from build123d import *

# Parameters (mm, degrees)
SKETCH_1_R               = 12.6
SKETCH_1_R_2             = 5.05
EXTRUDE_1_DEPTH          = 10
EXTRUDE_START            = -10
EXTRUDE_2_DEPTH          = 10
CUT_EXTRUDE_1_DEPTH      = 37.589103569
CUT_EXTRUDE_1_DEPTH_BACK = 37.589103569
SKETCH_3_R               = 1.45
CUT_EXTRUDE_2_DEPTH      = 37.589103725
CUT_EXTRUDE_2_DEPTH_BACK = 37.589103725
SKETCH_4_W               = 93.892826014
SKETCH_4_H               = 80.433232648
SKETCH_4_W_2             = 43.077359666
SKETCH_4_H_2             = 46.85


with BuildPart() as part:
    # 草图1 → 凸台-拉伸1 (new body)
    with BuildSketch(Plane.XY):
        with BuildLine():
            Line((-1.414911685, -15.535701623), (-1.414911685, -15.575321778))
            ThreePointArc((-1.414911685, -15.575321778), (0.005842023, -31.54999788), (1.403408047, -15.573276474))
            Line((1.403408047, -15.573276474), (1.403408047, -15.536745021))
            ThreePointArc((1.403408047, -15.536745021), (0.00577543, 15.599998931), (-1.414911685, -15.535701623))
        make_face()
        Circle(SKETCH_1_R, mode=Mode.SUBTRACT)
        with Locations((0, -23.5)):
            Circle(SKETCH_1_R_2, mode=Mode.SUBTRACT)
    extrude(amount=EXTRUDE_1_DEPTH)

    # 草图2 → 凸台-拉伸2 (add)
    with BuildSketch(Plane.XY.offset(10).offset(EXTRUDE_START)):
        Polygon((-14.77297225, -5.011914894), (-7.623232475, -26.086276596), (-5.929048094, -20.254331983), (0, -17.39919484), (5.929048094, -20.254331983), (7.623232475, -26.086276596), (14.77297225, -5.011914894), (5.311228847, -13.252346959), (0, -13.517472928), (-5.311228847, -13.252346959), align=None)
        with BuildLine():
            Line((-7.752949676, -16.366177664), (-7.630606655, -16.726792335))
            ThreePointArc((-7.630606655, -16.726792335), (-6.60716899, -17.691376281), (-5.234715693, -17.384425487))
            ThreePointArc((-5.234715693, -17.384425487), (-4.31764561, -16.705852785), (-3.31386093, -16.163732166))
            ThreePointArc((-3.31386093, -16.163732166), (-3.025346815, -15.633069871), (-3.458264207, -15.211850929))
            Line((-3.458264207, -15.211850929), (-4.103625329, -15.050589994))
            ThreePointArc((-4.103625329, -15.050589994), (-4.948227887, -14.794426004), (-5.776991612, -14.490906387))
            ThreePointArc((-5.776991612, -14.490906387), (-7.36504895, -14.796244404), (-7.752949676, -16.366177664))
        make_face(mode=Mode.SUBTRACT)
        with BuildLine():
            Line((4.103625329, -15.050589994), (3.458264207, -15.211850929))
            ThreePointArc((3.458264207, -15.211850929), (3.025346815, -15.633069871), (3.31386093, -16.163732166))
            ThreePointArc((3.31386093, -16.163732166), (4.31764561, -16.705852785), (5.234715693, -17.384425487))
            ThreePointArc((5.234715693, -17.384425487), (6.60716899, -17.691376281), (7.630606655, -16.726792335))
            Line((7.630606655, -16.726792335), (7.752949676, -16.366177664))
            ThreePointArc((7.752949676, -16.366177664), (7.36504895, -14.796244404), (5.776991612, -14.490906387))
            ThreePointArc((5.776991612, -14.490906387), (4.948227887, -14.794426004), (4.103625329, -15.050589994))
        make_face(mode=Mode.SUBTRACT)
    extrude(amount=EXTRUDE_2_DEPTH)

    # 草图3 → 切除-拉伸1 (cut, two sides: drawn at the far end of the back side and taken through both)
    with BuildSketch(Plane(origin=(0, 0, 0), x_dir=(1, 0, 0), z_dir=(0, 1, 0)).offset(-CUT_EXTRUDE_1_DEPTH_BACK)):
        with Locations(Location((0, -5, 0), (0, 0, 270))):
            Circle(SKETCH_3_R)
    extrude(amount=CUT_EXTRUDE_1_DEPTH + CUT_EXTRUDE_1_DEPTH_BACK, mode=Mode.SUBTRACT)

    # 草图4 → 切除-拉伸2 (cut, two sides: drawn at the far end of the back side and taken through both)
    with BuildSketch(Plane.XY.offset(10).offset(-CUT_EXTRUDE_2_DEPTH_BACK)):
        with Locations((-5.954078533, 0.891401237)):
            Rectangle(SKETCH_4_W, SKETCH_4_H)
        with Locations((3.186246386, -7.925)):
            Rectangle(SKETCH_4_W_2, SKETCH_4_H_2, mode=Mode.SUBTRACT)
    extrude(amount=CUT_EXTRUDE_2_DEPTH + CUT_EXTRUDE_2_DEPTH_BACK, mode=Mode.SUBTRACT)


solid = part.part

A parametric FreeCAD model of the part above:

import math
import FreeCAD as App
import Part
import Sketcher
from FreeCAD import Vector
Q = App.Units.Quantity

doc = App.newDocument("Part")
body = doc.addObject("PartDesign::Body", "Body")

sketch1 = body.newObject("Sketcher::SketchObject", "Sketch")
sketch1.AttachmentSupport = (doc.getObject("XY_Plane"), [""])
sketch1.MapMode = "FlatFace"
sketch1.addGeometry([
    Part.LineSegment(Vector(-1.414912, -15.535702, 0), Vector(-1.414912, -15.575322, 0)),
    Part.ArcOfCircle(Part.Circle(Vector(0, -23.5, 0), Vector(0, 0, 1), 8.05), math.radians(100.123204), math.radians(439.959957)),
    Part.LineSegment(Vector(1.403408, -15.573276, 0), Vector(1.403408, -15.536745, 0)),
    Part.ArcOfCircle(Part.Circle(Vector(0, 0, 0), Vector(0, 0, 1), 15.6), math.radians(-84.838576), math.radians(264.796152)),
    Part.Circle(Vector(0, -23.5, 0), Vector(0, 0, 1), 5.05),
    Part.Circle(Vector(0, 0, 0), Vector(0, 0, 1), 12.6),
], False)
sketch1.addConstraint([
    Sketcher.Constraint("Coincident", 0, 2, 1, 1),
    Sketcher.Constraint("Coincident", 1, 2, 2, 1),
    Sketcher.Constraint("Coincident", 2, 2, 3, 1),
    Sketcher.Constraint("Coincident", 3, 2, 0, 1),
    Sketcher.Constraint("Vertical", 0),
    Sketcher.Constraint("Vertical", 2),
    Sketcher.Constraint("Coincident", 3, 3, -1, 1),
    Sketcher.Constraint("Coincident", 5, 3, -1, 1),
    Sketcher.Constraint("Coincident", 4, 3, 1, 3),
    Sketcher.Constraint("PointOnObject", 1, 3, -2),
    Sketcher.Constraint("Diameter", 4, Q("10.1 mm")),
    Sketcher.Constraint("Diameter", 5, Q("25.2 mm")),
    Sketcher.Constraint("Radius", 3, Q("15.6 mm")),
    Sketcher.Constraint("Radius", 1, Q("8.05 mm")),
    Sketcher.Constraint("DistanceY", 1, 3, -1, 1, Q("23.5 mm")),
    Sketcher.Constraint("DistanceY", 0, 2, 0, 1, Q("0.03962 mm")),
    Sketcher.Constraint("DistanceY", 2, 1, 2, 2, Q("0.036531 mm")),
])
pad1 = body.newObject("PartDesign::Pad", "Pad")
pad1.Profile = sketch1
pad1.Length = 10

sketch2 = body.newObject("Sketcher::SketchObject", "Sketch001")
sketch2.AttachmentSupport = (doc.getObject("XY_Plane"), [""])
sketch2.MapMode = "FlatFace"
sketch2.addGeometry([
    Part.LineSegment(Vector(-14.772972, -5.011915, 0), Vector(-7.623232, -26.086277, 0)),
    Part.LineSegment(Vector(-7.623232, -26.086277, 0), Vector(-5.929048, -20.254332, 0)),
    Part.LineSegment(Vector(-5.929048, -20.254332, 0), Vector(0, -17.399195, 0)),
    Part.LineSegment(Vector(0, -17.399195, 0), Vector(5.929048, -20.254332, 0)),
    Part.LineSegment(Vector(5.929048, -20.254332, 0), Vector(7.623232, -26.086277, 0)),
    Part.LineSegment(Vector(7.623232, -26.086277, 0), Vector(14.772972, -5.011915, 0)),
    Part.LineSegment(Vector(14.772972, -5.011915, 0), Vector(5.311229, -13.252347, 0)),
    Part.LineSegment(Vector(5.311229, -13.252347, 0), Vector(0, -13.517473, 0)),
    Part.LineSegment(Vector(0, -13.517473, 0), Vector(-5.311229, -13.252347, 0)),
    Part.LineSegment(Vector(-5.311229, -13.252347, 0), Vector(-14.772972, -5.011915, 0)),
    Part.LineSegment(Vector(3.458264, -15.211851, 0), Vector(4.103625, -15.05059, 0)),
    Part.ArcOfCircle(Part.Circle(Vector(0, 0, 0), Vector(0, 0, 1), 15.6), math.radians(-74.748712), math.radians(-68.264648)),
    Part.ArcOfCircle(Part.Circle(Vector(6.332472, -15.884263, 0), Vector(0, 0, 1), 1.5), math.radians(-18.740146), math.radians(111.735352)),
    Part.LineSegment(Vector(7.75295, -16.366178, 0), Vector(7.630607, -16.726792, 0)),
    Part.ArcOfCircle(Part.Circle(Vector(6.210129, -16.244877, 0), Vector(0, 0, 1), 1.5), math.radians(-130.562357), math.radians(-18.740146)),
    Part.ArcOfCircle(Part.Circle(Vector(0, -23.5, 0), Vector(0, 0, 1), 8.05), math.radians(49.437643), math.radians(65.69086)),
    Part.ArcOfCircle(Part.Circle(Vector(3.519691, -15.708063, 0), Vector(0, 0, 1), 0.5), math.radians(97.056797), math.radians(245.69086)),
    Part.LineSegment(Vector(-7.630607, -16.726792, 0), Vector(-7.75295, -16.366178, 0)),
    Part.ArcOfCircle(Part.Circle(Vector(-6.332472, -15.884263, 0), Vector(0, 0, 1), 1.5), math.radians(68.264648), math.radians(198.740146)),
    Part.ArcOfCircle(Part.Circle(Vector(0, 0, 0), Vector(0, 0, 1), 15.6), math.radians(-111.735352), math.radians(-105.251288)),
    Part.LineSegment(Vector(-4.103625, -15.05059, 0), Vector(-3.458264, -15.211851, 0)),
    Part.ArcOfCircle(Part.Circle(Vector(-3.519691, -15.708063, 0), Vector(0, 0, 1), 0.5), math.radians(-65.69086), math.radians(82.943203)),
    Part.ArcOfCircle(Part.Circle(Vector(0, -23.5, 0), Vector(0, 0, 1), 8.05), math.radians(114.30914), math.radians(130.562357)),
    Part.ArcOfCircle(Part.Circle(Vector(-6.210129, -16.244877, 0), Vector(0, 0, 1), 1.5), math.radians(-161.259854), math.radians(-49.437643)),
], False)
sketch2.addConstraint([
    Sketcher.Constraint("Coincident", 0, 2, 1, 1),
    Sketcher.Constraint("Coincident", 1, 2, 2, 1),
    Sketcher.Constraint("Coincident", 2, 2, 3, 1),
    Sketcher.Constraint("Coincident", 3, 2, 4, 1),
    Sketcher.Constraint("Coincident", 4, 2, 5, 1),
    Sketcher.Constraint("Coincident", 5, 2, 6, 1),
    Sketcher.Constraint("Coincident", 6, 2, 7, 1),
    Sketcher.Constraint("Coincident", 7, 2, 8, 1),
    Sketcher.Constraint("Coincident", 8, 2, 9, 1),
    Sketcher.Constraint("Coincident", 9, 2, 0, 1),
    Sketcher.Constraint("Coincident", 10, 2, 11, 1),
    Sketcher.Constraint("Tangent", 11, 2, 12, 2),
    Sketcher.Constraint("Tangent", 12, 1, 13, 1),
    Sketcher.Constraint("Tangent", 13, 2, 14, 2),
    Sketcher.Constraint("Tangent", 14, 1, 15, 1),
    Sketcher.Constraint("Tangent", 15, 2, 16, 2),
    Sketcher.Constraint("Coincident", 16, 1, 10, 1),
    Sketcher.Constraint("Tangent", 17, 2, 18, 2),
    Sketcher.Constraint("Tangent", 18, 1, 19, 1),
    Sketcher.Constraint("Coincident", 19, 2, 20, 1),
    Sketcher.Constraint("Coincident", 20, 2, 21, 2),
    Sketcher.Constraint("Tangent", 21, 1, 22, 1),
    Sketcher.Constraint("Tangent", 22, 2, 23, 2),
    Sketcher.Constraint("Tangent", 23, 1, 17, 1),
    Sketcher.Constraint("Coincident", 11, 3, -1, 1),
    Sketcher.Constraint("Coincident", 19, 3, -1, 1),
    Sketcher.Constraint("Coincident", 22, 3, 15, 3),
    Sketcher.Constraint("Equal", 12, 14),
    Sketcher.Constraint("Equal", 14, 18),
    Sketcher.Constraint("Equal", 11, 19),
    Sketcher.Constraint("Equal", 16, 21),
    Sketcher.Constraint("Equal", 15, 22),
    Sketcher.Constraint("Equal", 18, 23),
    Sketcher.Constraint("Symmetric", 16, 3, 21, 3, -2),
    Sketcher.Constraint("Symmetric", 1, 2, 3, 2, -2),
    Sketcher.Constraint("Symmetric", 0, 2, 4, 2, -2),
    Sketcher.Constraint("Symmetric", 6, 2, 8, 2, -2),
    Sketcher.Constraint("Symmetric", 5, 2, 9, 2, -2),
    Sketcher.Constraint("Symmetric", 12, 1, 17, 2, -2),
    Sketcher.Constraint("PointOnObject", 2, 2, -2),
    Sketcher.Constraint("PointOnObject", 7, 2, -2),
    Sketcher.Constraint("Parallel", 5, 13),
    Sketcher.Constraint("Horizontal", 10, 2, 19, 2),
    Sketcher.Constraint("Horizontal", 16, 1, 20, 2),
    Sketcher.Constraint("Radius", 11, Q("15.6 mm")),
    Sketcher.Constraint("Radius", 12, Q("1.5 mm")),
    Sketcher.Constraint("Radius", 16, Q("0.5 mm")),
    Sketcher.Constraint("Radius", 15, Q("8.05 mm")),
    Sketcher.Constraint("DistanceY", 15, 3, -1, 1, Q("23.5 mm")),
    Sketcher.Constraint("DistanceY", 12, 3, 16, 3, Q("0.176199 mm")),
    Sketcher.Constraint("DistanceX", 18, 3, 14, 3, Q("12.5426 mm")),
    Sketcher.Constraint("DistanceY", 0, 2, 23, 3, Q("9.841399 mm")),
    Sketcher.Constraint("DistanceX", 12, 3, 5, 2, Q("8.440501 mm")),
    Sketcher.Constraint("DistanceX", 6, 2, 14, 3, Q("0.8989 mm")),
    Sketcher.Constraint("DistanceY", 12, 1, 14, 3, Q("0.1213 mm")),
    Sketcher.Constraint("DistanceX", 17, 2, 1, 2, Q("1.823902 mm")),
    Sketcher.Constraint("Distance", 1, Q("6.073042 mm")),
    Sketcher.Constraint("DistanceY", 1, 2, -1, 1, Q("20.254332 mm")),
    Sketcher.Constraint("DistanceY", 10, 2, -1, 1, Q("15.05059 mm")),
    Sketcher.Constraint("DistanceY", 16, 1, -1, 1, Q("15.211851 mm")),
    Sketcher.Constraint("DistanceY", 2, 2, 16, 3, Q("1.691131 mm")),
    Sketcher.Constraint("DistanceY", 14, 3, 6, 2, Q("2.99253 mm")),
    Sketcher.Constraint("DistanceY", 2, 2, 7, 2, Q("3.881722 mm")),
])
pad2 = body.newObject("PartDesign::Pad", "Pad001")
pad2.Profile = sketch2
pad2.Length = 10

sketch3 = body.newObject("Sketcher::SketchObject", "Sketch002")
sketch3.AttachmentSupport = (doc.getObject("XZ_Plane"), [""])
sketch3.MapMode = "FlatFace"
sketch3.addGeometry(Part.Circle(Vector(0, 5, 0), Vector(0, 0, 1), 1.45), False)
sketch3.addConstraint([
    Sketcher.Constraint("PointOnObject", 0, 3, -2),
    Sketcher.Constraint("Diameter", 0, Q("2.9 mm")),
    Sketcher.Constraint("DistanceY", -1, 1, 0, 3, Q("5 mm")),
])
pocket1 = body.newObject("PartDesign::Pocket", "Pocket")
pocket1.Profile = sketch3
pocket1.Type = "ThroughAll"
pocket1.Midplane = True

sketch4 = body.newObject("Sketcher::SketchObject", "Sketch003")
sketch4.AttachmentSupport = (doc.getObject("XY_Plane"), [""])
sketch4.MapMode = "FlatFace"
sketch4.AttachmentOffset = App.Placement(Vector(0, 0, 10), App.Rotation())
sketch4.addGeometry([
    Part.LineSegment(Vector(-52.900492, 41.108018, 0), Vector(-52.900492, -39.325215, 0)),
    Part.LineSegment(Vector(-52.900492, -39.325215, 0), Vector(40.992334, -39.325215, 0)),
    Part.LineSegment(Vector(40.992334, -39.325215, 0), Vector(40.992334, 41.108018, 0)),
    Part.LineSegment(Vector(40.992334, 41.108018, 0), Vector(-52.900492, 41.108018, 0)),
    Part.LineSegment(Vector(24.724926, -31.35, 0), Vector(-18.352433, -31.35, 0)),
    Part.LineSegment(Vector(-18.352433, -31.35, 0), Vector(-18.352433, 15.5, 0)),
    Part.LineSegment(Vector(-18.352433, 15.5, 0), Vector(24.724926, 15.5, 0)),
    Part.LineSegment(Vector(24.724926, 15.5, 0), Vector(24.724926, -31.35, 0)),
], False)
sketch4.addConstraint([
    Sketcher.Constraint("Coincident", 0, 2, 1, 1),
    Sketcher.Constraint("Coincident", 1, 2, 2, 1),
    Sketcher.Constraint("Coincident", 2, 2, 3, 1),
    Sketcher.Constraint("Coincident", 3, 2, 0, 1),
    Sketcher.Constraint("Coincident", 4, 2, 5, 1),
    Sketcher.Constraint("Coincident", 5, 2, 6, 1),
    Sketcher.Constraint("Coincident", 6, 2, 7, 1),
    Sketcher.Constraint("Coincident", 7, 2, 4, 1),
    Sketcher.Constraint("Vertical", 0),
    Sketcher.Constraint("Horizontal", 1),
    Sketcher.Constraint("Vertical", 2),
    Sketcher.Constraint("Horizontal", 3),
    Sketcher.Constraint("Horizontal", 4),
    Sketcher.Constraint("Vertical", 5),
    Sketcher.Constraint("Horizontal", 6),
    Sketcher.Constraint("Vertical", 7),
    Sketcher.Constraint("DistanceY", 5, 1, 5, 2, Q("46.85 mm")),
    Sketcher.Constraint("DistanceY", -1, 1, 5, 2, Q("15.5 mm")),
    Sketcher.Constraint("DistanceX", 4, 2, 4, 1, Q("43.07736 mm")),
    Sketcher.Constraint("DistanceX", 1, 1, 1, 2, Q("93.892826 mm")),
    Sketcher.Constraint("DistanceY", 0, 2, 0, 1, Q("80.433233 mm")),
    Sketcher.Constraint("DistanceX", 0, 2, -1, 1, Q("52.900492 mm")),
    Sketcher.Constraint("DistanceX", 0, 2, 4, 2, Q("34.548058 mm")),
    Sketcher.Constraint("DistanceY", 0, 2, -1, 1, Q("39.325215 mm")),
])
pocket2 = body.newObject("PartDesign::Pocket", "Pocket001")
pocket2.Profile = sketch4
pocket2.Type = "ThroughAll"
pocket2.Midplane = True

doc.recompute()
